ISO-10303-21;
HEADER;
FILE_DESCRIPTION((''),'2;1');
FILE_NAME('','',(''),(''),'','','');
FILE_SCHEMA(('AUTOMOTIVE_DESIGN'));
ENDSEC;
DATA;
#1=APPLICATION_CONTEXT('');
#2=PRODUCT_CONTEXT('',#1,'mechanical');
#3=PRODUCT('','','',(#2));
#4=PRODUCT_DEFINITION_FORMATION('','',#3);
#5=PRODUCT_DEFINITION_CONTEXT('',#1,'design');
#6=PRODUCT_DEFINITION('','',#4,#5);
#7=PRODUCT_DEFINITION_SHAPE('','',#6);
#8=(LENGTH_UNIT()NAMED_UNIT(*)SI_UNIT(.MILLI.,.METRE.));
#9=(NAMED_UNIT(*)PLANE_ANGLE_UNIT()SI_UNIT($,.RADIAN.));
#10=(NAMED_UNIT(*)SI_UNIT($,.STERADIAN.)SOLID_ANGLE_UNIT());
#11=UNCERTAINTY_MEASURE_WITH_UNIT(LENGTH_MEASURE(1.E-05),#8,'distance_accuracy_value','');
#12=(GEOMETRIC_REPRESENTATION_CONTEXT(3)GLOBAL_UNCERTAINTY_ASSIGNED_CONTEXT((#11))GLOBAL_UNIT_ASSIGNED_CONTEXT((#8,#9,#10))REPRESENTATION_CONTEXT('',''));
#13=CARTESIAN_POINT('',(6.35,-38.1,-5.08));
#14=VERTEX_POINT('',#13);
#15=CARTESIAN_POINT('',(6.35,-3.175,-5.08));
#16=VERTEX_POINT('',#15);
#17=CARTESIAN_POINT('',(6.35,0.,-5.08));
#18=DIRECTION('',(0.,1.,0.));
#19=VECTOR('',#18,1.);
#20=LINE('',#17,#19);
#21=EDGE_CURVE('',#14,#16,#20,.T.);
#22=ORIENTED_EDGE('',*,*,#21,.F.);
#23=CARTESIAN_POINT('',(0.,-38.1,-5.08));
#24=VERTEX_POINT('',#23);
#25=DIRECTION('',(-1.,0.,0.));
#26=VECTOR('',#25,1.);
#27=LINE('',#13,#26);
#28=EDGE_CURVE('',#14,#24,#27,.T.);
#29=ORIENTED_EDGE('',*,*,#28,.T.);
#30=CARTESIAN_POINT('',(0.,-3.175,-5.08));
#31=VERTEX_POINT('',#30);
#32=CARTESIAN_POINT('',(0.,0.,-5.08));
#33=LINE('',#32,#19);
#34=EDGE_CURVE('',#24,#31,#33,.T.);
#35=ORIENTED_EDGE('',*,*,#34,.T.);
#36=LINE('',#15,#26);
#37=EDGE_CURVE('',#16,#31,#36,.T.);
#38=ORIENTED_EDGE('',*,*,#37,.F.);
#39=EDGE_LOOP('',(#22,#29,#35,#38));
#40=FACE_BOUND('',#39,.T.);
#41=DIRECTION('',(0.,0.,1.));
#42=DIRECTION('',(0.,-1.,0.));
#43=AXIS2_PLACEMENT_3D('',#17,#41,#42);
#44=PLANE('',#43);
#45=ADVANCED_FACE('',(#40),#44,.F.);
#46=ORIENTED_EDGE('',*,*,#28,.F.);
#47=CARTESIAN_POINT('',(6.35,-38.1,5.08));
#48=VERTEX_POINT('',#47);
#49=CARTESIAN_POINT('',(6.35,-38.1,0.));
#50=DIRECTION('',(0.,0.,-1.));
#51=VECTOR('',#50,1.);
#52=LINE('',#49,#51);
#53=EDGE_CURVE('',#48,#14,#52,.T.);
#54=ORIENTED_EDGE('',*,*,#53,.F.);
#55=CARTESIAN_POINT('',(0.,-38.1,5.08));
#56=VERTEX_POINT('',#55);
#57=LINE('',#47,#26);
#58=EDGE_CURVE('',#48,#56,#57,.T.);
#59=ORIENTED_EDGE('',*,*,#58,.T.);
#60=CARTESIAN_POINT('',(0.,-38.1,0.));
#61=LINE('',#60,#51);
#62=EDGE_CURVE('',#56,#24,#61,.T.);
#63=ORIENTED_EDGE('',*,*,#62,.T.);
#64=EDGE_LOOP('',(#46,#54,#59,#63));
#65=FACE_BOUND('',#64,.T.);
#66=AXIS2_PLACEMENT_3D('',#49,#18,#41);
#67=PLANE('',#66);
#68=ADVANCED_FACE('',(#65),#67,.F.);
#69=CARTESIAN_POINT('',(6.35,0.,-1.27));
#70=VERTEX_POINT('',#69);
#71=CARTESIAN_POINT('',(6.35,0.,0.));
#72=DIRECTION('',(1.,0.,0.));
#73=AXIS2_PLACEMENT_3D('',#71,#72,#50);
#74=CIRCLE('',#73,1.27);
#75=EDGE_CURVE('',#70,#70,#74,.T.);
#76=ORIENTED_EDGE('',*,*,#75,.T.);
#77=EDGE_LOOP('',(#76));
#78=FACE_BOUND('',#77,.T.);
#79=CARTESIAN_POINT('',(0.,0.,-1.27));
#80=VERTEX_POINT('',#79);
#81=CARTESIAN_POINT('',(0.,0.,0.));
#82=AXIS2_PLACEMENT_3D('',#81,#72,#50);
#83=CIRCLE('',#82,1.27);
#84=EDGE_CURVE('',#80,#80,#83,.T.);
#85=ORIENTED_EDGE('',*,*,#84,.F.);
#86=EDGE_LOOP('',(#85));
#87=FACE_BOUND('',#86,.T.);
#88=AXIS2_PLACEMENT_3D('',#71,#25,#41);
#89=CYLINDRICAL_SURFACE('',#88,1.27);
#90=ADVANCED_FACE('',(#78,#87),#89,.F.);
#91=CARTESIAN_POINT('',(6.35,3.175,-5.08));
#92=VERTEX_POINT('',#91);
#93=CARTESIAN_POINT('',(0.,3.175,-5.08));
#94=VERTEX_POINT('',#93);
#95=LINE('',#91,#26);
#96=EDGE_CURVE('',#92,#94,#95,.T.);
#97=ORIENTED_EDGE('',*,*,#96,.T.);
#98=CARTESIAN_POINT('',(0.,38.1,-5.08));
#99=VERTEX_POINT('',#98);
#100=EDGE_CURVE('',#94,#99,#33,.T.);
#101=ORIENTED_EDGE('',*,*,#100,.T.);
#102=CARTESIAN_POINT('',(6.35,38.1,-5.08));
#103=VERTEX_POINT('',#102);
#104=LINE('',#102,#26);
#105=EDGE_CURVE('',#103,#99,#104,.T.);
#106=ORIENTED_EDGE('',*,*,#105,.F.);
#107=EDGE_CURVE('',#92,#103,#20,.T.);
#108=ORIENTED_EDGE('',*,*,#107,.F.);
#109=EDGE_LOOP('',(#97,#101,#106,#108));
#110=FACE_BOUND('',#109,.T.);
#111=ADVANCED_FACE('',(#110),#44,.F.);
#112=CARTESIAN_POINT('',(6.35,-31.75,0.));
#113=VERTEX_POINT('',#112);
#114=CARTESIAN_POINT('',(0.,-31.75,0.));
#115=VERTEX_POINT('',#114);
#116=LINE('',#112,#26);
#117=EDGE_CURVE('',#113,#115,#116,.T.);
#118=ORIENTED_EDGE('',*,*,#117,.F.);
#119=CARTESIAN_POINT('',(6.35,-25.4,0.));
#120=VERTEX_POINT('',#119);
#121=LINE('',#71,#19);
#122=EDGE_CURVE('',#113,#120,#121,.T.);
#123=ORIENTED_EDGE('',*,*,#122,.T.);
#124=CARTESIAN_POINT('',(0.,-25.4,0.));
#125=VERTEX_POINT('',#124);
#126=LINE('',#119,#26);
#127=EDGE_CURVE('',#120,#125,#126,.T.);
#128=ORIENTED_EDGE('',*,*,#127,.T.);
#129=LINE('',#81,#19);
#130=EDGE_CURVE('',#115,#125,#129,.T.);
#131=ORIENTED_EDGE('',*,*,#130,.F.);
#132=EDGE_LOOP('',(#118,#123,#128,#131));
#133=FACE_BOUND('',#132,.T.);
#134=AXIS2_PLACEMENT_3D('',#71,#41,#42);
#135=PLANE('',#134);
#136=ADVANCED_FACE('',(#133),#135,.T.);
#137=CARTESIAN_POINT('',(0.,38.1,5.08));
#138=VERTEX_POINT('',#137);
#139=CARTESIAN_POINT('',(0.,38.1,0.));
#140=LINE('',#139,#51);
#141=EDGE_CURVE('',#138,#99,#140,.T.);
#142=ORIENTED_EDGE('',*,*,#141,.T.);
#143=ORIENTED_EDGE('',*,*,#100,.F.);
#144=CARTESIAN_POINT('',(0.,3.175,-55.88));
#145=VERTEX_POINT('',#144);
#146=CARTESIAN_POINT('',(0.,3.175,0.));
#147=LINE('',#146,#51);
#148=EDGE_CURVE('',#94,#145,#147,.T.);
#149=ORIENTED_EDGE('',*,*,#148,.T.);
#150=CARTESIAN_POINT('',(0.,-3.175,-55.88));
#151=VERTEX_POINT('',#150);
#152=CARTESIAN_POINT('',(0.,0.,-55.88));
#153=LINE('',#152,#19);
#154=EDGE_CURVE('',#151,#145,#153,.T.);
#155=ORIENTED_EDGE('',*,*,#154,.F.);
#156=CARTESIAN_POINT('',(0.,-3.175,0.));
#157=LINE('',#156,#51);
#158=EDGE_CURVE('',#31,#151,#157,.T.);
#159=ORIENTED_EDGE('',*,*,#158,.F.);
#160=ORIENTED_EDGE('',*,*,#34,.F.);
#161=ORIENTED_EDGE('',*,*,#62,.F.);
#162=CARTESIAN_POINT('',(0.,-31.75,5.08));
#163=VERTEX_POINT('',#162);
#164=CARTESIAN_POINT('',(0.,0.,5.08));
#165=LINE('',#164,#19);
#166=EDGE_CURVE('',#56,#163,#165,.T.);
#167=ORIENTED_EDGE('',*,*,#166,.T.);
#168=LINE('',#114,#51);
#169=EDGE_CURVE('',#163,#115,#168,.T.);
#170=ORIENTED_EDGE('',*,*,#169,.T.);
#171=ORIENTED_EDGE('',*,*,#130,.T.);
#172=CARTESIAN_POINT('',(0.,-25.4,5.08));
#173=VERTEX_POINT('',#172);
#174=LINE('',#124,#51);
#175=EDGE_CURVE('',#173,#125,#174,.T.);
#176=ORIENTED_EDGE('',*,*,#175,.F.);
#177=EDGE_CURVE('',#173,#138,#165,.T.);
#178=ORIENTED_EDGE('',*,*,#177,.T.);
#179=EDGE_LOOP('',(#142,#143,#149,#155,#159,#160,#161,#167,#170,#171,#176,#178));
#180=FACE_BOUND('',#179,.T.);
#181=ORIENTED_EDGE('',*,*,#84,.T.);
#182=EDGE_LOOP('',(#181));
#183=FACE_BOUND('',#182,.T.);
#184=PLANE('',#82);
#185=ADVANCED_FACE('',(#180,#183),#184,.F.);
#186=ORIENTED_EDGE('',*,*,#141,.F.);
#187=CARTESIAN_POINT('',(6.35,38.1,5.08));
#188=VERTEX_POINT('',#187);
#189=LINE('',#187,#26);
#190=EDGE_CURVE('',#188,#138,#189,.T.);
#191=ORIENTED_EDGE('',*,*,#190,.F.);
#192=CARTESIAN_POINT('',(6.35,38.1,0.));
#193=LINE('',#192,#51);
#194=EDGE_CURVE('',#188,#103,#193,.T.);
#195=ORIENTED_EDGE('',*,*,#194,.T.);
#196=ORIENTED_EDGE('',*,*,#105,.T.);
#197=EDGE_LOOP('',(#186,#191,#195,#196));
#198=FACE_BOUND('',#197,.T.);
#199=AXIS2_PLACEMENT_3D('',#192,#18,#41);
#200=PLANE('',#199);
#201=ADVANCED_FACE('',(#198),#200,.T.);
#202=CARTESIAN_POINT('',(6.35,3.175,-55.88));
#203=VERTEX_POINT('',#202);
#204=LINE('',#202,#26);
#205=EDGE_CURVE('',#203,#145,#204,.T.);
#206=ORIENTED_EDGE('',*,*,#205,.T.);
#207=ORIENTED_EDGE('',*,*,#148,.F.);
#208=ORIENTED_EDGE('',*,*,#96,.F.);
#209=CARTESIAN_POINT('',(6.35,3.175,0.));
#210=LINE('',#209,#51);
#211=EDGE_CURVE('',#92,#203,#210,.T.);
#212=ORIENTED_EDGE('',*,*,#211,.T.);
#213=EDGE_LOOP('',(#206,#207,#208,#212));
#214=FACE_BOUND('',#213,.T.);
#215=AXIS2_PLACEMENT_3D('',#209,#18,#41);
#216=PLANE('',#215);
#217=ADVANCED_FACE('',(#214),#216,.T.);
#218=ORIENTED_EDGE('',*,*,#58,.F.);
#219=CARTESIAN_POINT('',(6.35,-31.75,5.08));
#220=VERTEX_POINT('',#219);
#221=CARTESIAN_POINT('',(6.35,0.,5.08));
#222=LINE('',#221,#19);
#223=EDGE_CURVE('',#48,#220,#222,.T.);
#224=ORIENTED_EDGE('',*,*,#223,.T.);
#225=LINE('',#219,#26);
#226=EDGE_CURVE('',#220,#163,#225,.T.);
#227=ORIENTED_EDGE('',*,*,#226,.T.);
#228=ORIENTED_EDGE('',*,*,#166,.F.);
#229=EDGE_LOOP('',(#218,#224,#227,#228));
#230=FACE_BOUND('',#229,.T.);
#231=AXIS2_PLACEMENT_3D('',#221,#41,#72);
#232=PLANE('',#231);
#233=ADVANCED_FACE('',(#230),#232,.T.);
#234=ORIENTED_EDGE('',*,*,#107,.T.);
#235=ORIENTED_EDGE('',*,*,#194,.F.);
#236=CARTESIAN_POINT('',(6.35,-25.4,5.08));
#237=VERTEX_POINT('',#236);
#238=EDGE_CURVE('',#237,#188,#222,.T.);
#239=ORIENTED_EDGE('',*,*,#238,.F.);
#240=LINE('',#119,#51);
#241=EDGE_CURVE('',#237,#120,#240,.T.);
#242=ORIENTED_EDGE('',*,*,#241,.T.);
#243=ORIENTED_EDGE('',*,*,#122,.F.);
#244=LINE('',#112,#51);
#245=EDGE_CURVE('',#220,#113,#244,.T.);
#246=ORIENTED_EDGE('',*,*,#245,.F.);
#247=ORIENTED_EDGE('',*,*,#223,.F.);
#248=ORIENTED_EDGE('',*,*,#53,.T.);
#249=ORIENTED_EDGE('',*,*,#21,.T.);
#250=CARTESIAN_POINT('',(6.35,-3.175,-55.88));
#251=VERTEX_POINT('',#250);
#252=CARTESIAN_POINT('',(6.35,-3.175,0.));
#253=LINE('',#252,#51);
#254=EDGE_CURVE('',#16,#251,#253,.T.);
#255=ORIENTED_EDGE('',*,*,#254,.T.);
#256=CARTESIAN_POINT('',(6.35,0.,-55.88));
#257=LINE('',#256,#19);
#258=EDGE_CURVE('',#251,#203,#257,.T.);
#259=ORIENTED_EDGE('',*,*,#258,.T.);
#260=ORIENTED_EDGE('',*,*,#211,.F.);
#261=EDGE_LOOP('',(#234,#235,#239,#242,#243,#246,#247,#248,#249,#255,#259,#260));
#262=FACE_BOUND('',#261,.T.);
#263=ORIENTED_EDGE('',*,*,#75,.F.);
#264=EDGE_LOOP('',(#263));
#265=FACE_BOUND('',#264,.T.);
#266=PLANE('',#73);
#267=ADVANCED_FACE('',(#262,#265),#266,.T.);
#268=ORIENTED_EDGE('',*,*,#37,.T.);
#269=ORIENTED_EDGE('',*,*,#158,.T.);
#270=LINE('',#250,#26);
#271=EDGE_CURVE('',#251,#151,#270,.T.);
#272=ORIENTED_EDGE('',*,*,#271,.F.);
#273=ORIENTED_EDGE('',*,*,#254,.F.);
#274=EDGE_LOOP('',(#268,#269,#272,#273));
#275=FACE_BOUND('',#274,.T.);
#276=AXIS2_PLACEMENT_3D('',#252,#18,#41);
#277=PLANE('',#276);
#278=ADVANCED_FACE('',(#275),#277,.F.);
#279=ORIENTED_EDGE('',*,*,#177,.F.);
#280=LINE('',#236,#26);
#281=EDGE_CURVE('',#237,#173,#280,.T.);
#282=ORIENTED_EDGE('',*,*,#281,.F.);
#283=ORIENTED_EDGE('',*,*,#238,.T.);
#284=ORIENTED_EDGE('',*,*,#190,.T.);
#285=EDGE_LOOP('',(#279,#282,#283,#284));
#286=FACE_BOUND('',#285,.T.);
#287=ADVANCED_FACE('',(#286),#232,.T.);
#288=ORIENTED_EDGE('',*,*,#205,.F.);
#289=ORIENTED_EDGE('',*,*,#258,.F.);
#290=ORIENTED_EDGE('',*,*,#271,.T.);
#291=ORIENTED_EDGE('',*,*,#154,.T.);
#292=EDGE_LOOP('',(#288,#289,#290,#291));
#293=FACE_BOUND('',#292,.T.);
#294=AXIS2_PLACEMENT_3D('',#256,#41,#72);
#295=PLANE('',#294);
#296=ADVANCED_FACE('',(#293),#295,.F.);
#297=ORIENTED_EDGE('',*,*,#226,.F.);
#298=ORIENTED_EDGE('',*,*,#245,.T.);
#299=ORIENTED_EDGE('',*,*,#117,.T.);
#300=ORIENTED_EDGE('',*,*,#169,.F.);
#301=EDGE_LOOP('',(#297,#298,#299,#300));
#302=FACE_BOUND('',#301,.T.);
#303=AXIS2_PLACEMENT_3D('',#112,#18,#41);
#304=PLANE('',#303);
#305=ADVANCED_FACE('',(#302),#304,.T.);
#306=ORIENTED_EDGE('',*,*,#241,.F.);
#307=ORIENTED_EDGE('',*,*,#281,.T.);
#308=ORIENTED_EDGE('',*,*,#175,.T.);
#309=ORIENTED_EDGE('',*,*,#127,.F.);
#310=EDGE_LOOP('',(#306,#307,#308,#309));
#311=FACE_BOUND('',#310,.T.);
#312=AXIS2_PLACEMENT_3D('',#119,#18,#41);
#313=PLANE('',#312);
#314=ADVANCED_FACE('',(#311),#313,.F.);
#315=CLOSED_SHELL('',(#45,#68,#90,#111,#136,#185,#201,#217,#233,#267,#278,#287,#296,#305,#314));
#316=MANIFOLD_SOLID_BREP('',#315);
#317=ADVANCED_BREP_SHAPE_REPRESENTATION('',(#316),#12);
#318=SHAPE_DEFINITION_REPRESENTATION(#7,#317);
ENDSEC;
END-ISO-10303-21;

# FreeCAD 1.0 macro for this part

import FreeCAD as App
import Part
import Sketcher
from FreeCAD import Vector
Q = App.Units.Quantity

doc = App.newDocument("Part")
body = doc.addObject("PartDesign::Body", "Body")

# Sketch on YZ plane
sketch1 = doc.addObject("Sketcher::SketchObject", "Sketch")
body.addObject(sketch1)
sketch1.AttachmentSupport = (doc.YZ_Plane, [""])
sketch1.MapMode = "FlatFace"
sketch1.addGeometry([
    Part.LineSegment(Vector(38.1, 5.1, 0), Vector(-25.4, 5.1, 0)),  # 0
    Part.LineSegment(Vector(-25.4, 5.1, 0), Vector(-25.4, 0, 0)),  # 1
    Part.LineSegment(Vector(-25.4, 0, 0), Vector(-31.8, 0, 0)),  # 2
    Part.LineSegment(Vector(-31.8, 0, 0), Vector(-31.8, 5.1, 0)),  # 3
    Part.LineSegment(Vector(-31.8, 5.1, 0), Vector(-38.1, 5.1, 0)),  # 4
    Part.LineSegment(Vector(-38.1, 5.1, 0), Vector(-38.1, -5.1, 0)),  # 5
    Part.LineSegment(Vector(-38.1, -5.1, 0), Vector(-3.2, -5.1, 0)),  # 6
    Part.LineSegment(Vector(-3.2, -5.1, 0), Vector(-3.2, -55.9, 0)),  # 7
    Part.LineSegment(Vector(-3.2, -55.9, 0), Vector(3.2, -55.9, 0)),  # 8
    Part.LineSegment(Vector(3.2, -55.9, 0), Vector(3.2, -5.1, 0)),  # 9
    Part.LineSegment(Vector(3.2, -5.1, 0), Vector(38.1, -5.1, 0)),  # 10
    Part.LineSegment(Vector(38.1, -5.1, 0), Vector(38.1, 5.1, 0)),  # 11
    Part.Circle(Vector(0, 0, 0), Vector(0, 0, 1), 1.3),  # 12
], False)
sketch1.addConstraint([
    Sketcher.Constraint("Coincident", 0, 2, 1, 1),
    Sketcher.Constraint("Coincident", 1, 2, 2, 1),
    Sketcher.Constraint("Coincident", 2, 2, 3, 1),
    Sketcher.Constraint("Coincident", 3, 2, 4, 1),
    Sketcher.Constraint("Coincident", 4, 2, 5, 1),
    Sketcher.Constraint("Coincident", 5, 2, 6, 1),
    Sketcher.Constraint("Coincident", 6, 2, 7, 1),
    Sketcher.Constraint("Coincident", 7, 2, 8, 1),
    Sketcher.Constraint("Coincident", 8, 2, 9, 1),
    Sketcher.Constraint("Coincident", 9, 2, 10, 1),
    Sketcher.Constraint("Coincident", 10, 2, 11, 1),
    Sketcher.Constraint("Coincident", 11, 2, 0, 1),
    Sketcher.Constraint("Horizontal", 0),
    Sketcher.Constraint("Vertical", 1),
    Sketcher.Constraint("Horizontal", 2),
    Sketcher.Constraint("Vertical", 3),
    Sketcher.Constraint("Horizontal", 4),
    Sketcher.Constraint("Vertical", 5),
    Sketcher.Constraint("Horizontal", 6),
    Sketcher.Constraint("Vertical", 7),
    Sketcher.Constraint("Horizontal", 8),
    Sketcher.Constraint("Vertical", 9),
    Sketcher.Constraint("Horizontal", 10),
    Sketcher.Constraint("Vertical", 11),
    Sketcher.Constraint("Coincident", 12, 3, -1, 1),
    Sketcher.Constraint("Symmetric", 4, 2, 10, 2, -1, 1),
    Sketcher.Constraint("Symmetric", 6, 2, 9, 2, -2),
    Sketcher.Constraint("PointOnObject", 1, 2, -1),
    Sketcher.Constraint("Horizontal", 0, 2, 3, 2),
    Sketcher.Constraint("Equal", 2, 4),
    Sketcher.Constraint("Equal", 4, 8),
    Sketcher.Constraint("Diameter", 12, Q("0.1 in")),
    Sketcher.Constraint("DistanceY", 7, 2, 7, 1, Q("2 in")),
    Sketcher.Constraint("DistanceX", 0, 2, 0, 1, Q("2.5 in")),
    Sketcher.Constraint("DistanceY", 1, 2, 1, 1, Q("0.2 in")),
    Sketcher.Constraint("DistanceX", 0, 2, -1, 1, Q("1 in")),
])
pad1 = doc.addObject("PartDesign::Pad", "Pad")
body.addObject(pad1)
pad1.Profile = sketch1
pad1.Length = Q("0.25 in")

doc.recompute()
